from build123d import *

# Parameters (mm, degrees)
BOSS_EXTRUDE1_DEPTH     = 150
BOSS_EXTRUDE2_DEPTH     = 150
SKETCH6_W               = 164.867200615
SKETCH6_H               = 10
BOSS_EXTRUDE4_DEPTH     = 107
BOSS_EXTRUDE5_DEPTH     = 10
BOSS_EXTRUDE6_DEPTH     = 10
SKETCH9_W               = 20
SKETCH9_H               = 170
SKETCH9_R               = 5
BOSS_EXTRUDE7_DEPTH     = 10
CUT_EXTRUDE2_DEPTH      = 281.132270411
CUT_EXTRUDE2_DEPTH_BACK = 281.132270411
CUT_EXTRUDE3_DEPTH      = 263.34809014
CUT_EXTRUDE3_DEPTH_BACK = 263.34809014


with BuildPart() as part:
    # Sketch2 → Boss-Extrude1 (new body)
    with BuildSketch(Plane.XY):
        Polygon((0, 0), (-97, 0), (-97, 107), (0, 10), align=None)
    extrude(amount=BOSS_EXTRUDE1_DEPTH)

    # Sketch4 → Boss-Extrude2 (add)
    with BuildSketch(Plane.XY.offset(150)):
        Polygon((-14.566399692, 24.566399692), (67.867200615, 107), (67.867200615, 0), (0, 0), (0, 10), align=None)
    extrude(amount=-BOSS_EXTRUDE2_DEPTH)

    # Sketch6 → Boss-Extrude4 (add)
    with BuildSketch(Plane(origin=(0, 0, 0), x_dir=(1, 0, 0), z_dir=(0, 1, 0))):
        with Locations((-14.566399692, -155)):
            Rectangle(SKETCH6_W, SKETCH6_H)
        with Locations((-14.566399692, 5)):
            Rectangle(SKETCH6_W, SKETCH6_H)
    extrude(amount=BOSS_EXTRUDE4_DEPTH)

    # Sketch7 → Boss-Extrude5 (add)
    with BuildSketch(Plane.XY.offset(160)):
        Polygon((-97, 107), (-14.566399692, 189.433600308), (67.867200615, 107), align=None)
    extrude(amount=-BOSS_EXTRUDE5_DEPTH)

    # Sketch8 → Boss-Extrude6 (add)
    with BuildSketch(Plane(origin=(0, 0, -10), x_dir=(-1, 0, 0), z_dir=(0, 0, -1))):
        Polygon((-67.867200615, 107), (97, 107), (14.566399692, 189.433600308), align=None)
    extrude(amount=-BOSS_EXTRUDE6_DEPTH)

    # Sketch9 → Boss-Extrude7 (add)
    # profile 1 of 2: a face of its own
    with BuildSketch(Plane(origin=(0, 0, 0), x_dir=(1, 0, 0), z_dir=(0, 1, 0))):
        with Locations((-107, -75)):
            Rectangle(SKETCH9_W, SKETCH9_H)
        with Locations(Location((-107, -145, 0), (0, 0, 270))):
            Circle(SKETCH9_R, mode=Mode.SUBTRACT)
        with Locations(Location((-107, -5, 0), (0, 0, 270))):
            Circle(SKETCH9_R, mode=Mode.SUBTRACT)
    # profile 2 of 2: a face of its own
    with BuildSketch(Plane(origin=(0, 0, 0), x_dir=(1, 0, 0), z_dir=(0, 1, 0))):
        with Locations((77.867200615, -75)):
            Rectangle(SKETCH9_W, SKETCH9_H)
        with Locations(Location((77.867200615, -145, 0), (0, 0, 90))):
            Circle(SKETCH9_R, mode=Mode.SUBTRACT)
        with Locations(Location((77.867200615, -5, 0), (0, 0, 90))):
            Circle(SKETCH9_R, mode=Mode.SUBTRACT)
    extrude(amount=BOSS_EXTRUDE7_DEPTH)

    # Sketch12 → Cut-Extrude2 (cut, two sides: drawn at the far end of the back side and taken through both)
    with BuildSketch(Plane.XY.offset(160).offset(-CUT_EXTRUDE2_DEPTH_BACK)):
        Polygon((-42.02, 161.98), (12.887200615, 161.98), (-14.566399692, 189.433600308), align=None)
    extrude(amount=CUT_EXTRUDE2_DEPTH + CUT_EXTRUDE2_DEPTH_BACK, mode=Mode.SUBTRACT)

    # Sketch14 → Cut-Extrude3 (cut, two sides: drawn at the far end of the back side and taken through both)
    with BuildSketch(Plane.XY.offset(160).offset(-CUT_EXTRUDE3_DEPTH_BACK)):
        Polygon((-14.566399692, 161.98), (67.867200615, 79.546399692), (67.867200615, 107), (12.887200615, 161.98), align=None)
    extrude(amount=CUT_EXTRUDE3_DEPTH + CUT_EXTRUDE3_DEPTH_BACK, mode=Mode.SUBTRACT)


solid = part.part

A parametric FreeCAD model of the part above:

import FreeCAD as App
import Part
import Sketcher

V = App.Vector
Q = App.Units.Quantity

doc = App.newDocument("Part")
params = doc.addObject("Spreadsheet::Sheet", "Params")
for row, (alias, value) in enumerate([
    ("sketch1_width", "97 mm"),
    ("sketch1_height", "10 mm"),
    ("sketch1_height2", "107 mm"),
    ("pad1_length", "150 mm"),
    ("sketch2_height", "10 mm"),
    ("sketch2_height2", "107 mm"),
    ("sketch2_length", "20.6 mm"),
    ("pad2_length", "150 mm"),
    ("sketch3_height", "10 mm"),
    ("pad3_length", "107 mm"),
    ("pad4_length", "10 mm"),
    ("pad5_length", "10 mm"),
    ("sketch6_diameter", "10 mm"),
    ("sketch6_width", "20 mm"),
    ("sketch6_height", "170 mm"),
    ("pad6_length", "10 mm"),
], start=1):
    params.set(f"A{row}", alias)
    params.set(f"B{row}", "=" + value)
    params.setAlias(f"B{row}", alias)

body = doc.addObject("PartDesign::Body", "Body")

# Sketch on XY plane
sketch1 = body.newObject("Sketcher::SketchObject", "Sketch")
sketch1.AttachmentSupport = (doc.getObject("XY_Plane"), [""])
sketch1.MapMode = "FlatFace"
sketch1.addGeometry(Part.LineSegment(V(-97, 0, 0), V(0, 0, 0)), False)
sketch1.addGeometry(Part.LineSegment(V(0, 0, 0), V(0, 10, 0)), False)
sketch1.addGeometry(Part.LineSegment(V(0, 10, 0), V(-97, 107, 0)), False)
sketch1.addGeometry(Part.LineSegment(V(-97, 107, 0), V(-97, 0, 0)), False)
sketch1.addConstraint(Sketcher.Constraint("Coincident", 0, 2, 1, 1))
sketch1.addConstraint(Sketcher.Constraint("Coincident", 1, 2, 2, 1))
sketch1.addConstraint(Sketcher.Constraint("Coincident", 2, 2, 3, 1))
sketch1.addConstraint(Sketcher.Constraint("Coincident", 3, 2, 0, 1))
sketch1.addConstraint(Sketcher.Constraint("Horizontal", 0))
sketch1.addConstraint(Sketcher.Constraint("Vertical", 1))
sketch1.addConstraint(Sketcher.Constraint("Vertical", 3))
sketch1.addConstraint(Sketcher.Constraint("Coincident", 0, 2, -1, 1))
sketch1.addConstraint(Sketcher.Constraint("DistanceX", 0, 1, 0, 2, 97.0))
sketch1.addConstraint(Sketcher.Constraint("DistanceY", 1, 1, 1, 2, 10.0))
sketch1.addConstraint(Sketcher.Constraint("DistanceY", 3, 2, 3, 1, 107.0))
sketch1.setExpression("Constraints[8]", "Params.sketch1_width")
sketch1.setExpression("Constraints[9]", "Params.sketch1_height")
sketch1.setExpression("Constraints[10]", "Params.sketch1_height2")
pad1 = body.newObject("PartDesign::Pad", "Pad")
pad1.Profile = sketch1
pad1.setExpression("Length", "Params.pad1_length")

# Sketch on XY plane
sketch2 = body.newObject("Sketcher::SketchObject", "Sketch001")
sketch2.AttachmentSupport = (doc.getObject("XY_Plane"), [""])
sketch2.MapMode = "FlatFace"
sketch2.AttachmentOffset = App.Placement(V(0, 0, 150), App.Rotation())
sketch2.addGeometry(Part.LineSegment(V(68, 107, 0), V(-15, 25, 0)), False)
sketch2.addGeometry(Part.LineSegment(V(-15, 25, 0), V(0, 10, 0)), False)
sketch2.addGeometry(Part.LineSegment(V(0, 10, 0), V(0, 0, 0)), False)
sketch2.addGeometry(Part.LineSegment(V(0, 0, 0), V(68, 0, 0)), False)
sketch2.addGeometry(Part.LineSegment(V(68, 0, 0), V(68, 107, 0)), False)
sketch2.addConstraint(Sketcher.Constraint("Coincident", 0, 2, 1, 1))
sketch2.addConstraint(Sketcher.Constraint("Coincident", 1, 2, 2, 1))
sketch2.addConstraint(Sketcher.Constraint("Coincident", 2, 2, 3, 1))
sketch2.addConstraint(Sketcher.Constraint("Coincident", 3, 2, 4, 1))
sketch2.addConstraint(Sketcher.Constraint("Coincident", 4, 2, 0, 1))
sketch2.addConstraint(Sketcher.Constraint("Vertical", 2))
sketch2.addConstraint(Sketcher.Constraint("Horizontal", 3))
sketch2.addConstraint(Sketcher.Constraint("Vertical", 4))
sketch2.addConstraint(Sketcher.Constraint("Coincident", 2, 2, -1, 1))
sketch2.addConstraint(Sketcher.Constraint("Perpendicular", 0, 1))
sketch2.addConstraint(Sketcher.Constraint("DistanceY", 2, 2, 2, 1, 10.0))
sketch2.addConstraint(Sketcher.Constraint("DistanceY", 4, 1, 4, 2, 107.0))
sketch2.addConstraint(Sketcher.Constraint("Angle", 0, Q("-135 deg")))
sketch2.addConstraint(Sketcher.Constraint("Distance", 1, 20.6))
sketch2.setExpression("Constraints[10]", "Params.sketch2_height")
sketch2.setExpression("Constraints[11]", "Params.sketch2_height2")
sketch2.setExpression("Constraints[13]", "Params.sketch2_length")
pad2 = body.newObject("PartDesign::Pad", "Pad001")
pad2.Profile = sketch2
pad2.setExpression("Length", "Params.pad2_length")
pad2.Reversed = True

# Sketch on XZ plane
sketch3 = body.newObject("Sketcher::SketchObject", "Sketch002")
sketch3.AttachmentSupport = (doc.getObject("XZ_Plane"), [""])
sketch3.MapMode = "FlatFace"
sketch3.addGeometry(Part.LineSegment(V(-97, 150, 0), V(-97, 160, 0)), False)
sketch3.addGeometry(Part.LineSegment(V(-97, 160, 0), V(68, 160, 0)), False)
sketch3.addGeometry(Part.LineSegment(V(68, 160, 0), V(68, 150, 0)), False)
sketch3.addGeometry(Part.LineSegment(V(68, 150, 0), V(-97, 150, 0)), False)
sketch3.addGeometry(Part.LineSegment(V(-97, -10, 0), V(-97, 0, 0)), False)
sketch3.addGeometry(Part.LineSegment(V(-97, 0, 0), V(68, 0, 0)), False)
sketch3.addGeometry(Part.LineSegment(V(68, 0, 0), V(68, -10, 0)), False)
sketch3.addGeometry(Part.LineSegment(V(68, -10, 0), V(-97, -10, 0)), False)
sketch3.addConstraint(Sketcher.Constraint("Coincident", 0, 2, 1, 1))
sketch3.addConstraint(Sketcher.Constraint("Coincident", 1, 2, 2, 1))
sketch3.addConstraint(Sketcher.Constraint("Coincident", 2, 2, 3, 1))
sketch3.addConstraint(Sketcher.Constraint("Coincident", 3, 2, 0, 1))
sketch3.addConstraint(Sketcher.Constraint("Coincident", 4, 2, 5, 1))
sketch3.addConstraint(Sketcher.Constraint("Coincident", 5, 2, 6, 1))
sketch3.addConstraint(Sketcher.Constraint("Coincident", 6, 2, 7, 1))
sketch3.addConstraint(Sketcher.Constraint("Coincident", 7, 2, 4, 1))
sketch3.addConstraint(Sketcher.Constraint("Vertical", 0))
sketch3.addConstraint(Sketcher.Constraint("Horizontal", 1))
sketch3.addConstraint(Sketcher.Constraint("Vertical", 2))
sketch3.addConstraint(Sketcher.Constraint("Horizontal", 3))
sketch3.addConstraint(Sketcher.Constraint("Vertical", 4))
sketch3.addConstraint(Sketcher.Constraint("Horizontal", 5))
sketch3.addConstraint(Sketcher.Constraint("Vertical", 6))
sketch3.addConstraint(Sketcher.Constraint("Horizontal", 7))
sketch3.addConstraint(Sketcher.Constraint("PointOnObject", 4, 2, -1))
sketch3.addConstraint(Sketcher.Constraint("Vertical", 3, 2, 4, 2))
sketch3.addConstraint(Sketcher.Constraint("Vertical", 2, 2, 5, 2))
sketch3.addConstraint(Sketcher.Constraint("Equal", 2, 4))
sketch3.addConstraint(Sketcher.Constraint("DistanceY", 0, 1, 0, 2, 10.0))
sketch3.addConstraint(Sketcher.Constraint("DistanceX", 0, 2, -1, 1, 97.0))
sketch3.addConstraint(Sketcher.Constraint("DistanceY", -1, 1, 0, 2, 160.0))
sketch3.addConstraint(Sketcher.Constraint("DistanceX", 1, 1, 1, 2, 164.867201))
sketch3.setExpression("Constraints[20]", "Params.sketch3_height")
pad3 = body.newObject("PartDesign::Pad", "Pad002")
pad3.Profile = sketch3
pad3.setExpression("Length", "Params.pad3_length")
pad3.Reversed = True

# Sketch on XY plane
sketch4 = body.newObject("Sketcher::SketchObject", "Sketch003")
sketch4.AttachmentSupport = (doc.getObject("XY_Plane"), [""])
sketch4.MapMode = "FlatFace"
sketch4.AttachmentOffset = App.Placement(V(0, 0, 160), App.Rotation())
sketch4.addGeometry(Part.LineSegment(V(-15, 189, 0), V(-97, 107, 0)), False)
sketch4.addGeometry(Part.LineSegment(V(-97, 107, 0), V(68, 107, 0)), False)
sketch4.addGeometry(Part.LineSegment(V(68, 107, 0), V(-15, 189, 0)), False)
sketch4.addConstraint(Sketcher.Constraint("Coincident", 0, 2, 1, 1))
sketch4.addConstraint(Sketcher.Constraint("Coincident", 1, 2, 2, 1))
sketch4.addConstraint(Sketcher.Constraint("Coincident", 2, 2, 0, 1))
sketch4.addConstraint(Sketcher.Constraint("Horizontal", 1))
sketch4.addConstraint(Sketcher.Constraint("Perpendicular", 0, 2))
sketch4.addConstraint(Sketcher.Constraint("Equal", 0, 2))
sketch4.addConstraint(Sketcher.Constraint("DistanceX", 0, 2, -1, 1, 97.0))
sketch4.addConstraint(Sketcher.Constraint("DistanceY", -1, 1, 0, 2, 107.0))
sketch4.addConstraint(Sketcher.Constraint("DistanceX", 1, 1, 1, 2, 164.867201))
pad4 = body.newObject("PartDesign::Pad", "Pad003")
pad4.Profile = sketch4
pad4.setExpression("Length", "Params.pad4_length")
pad4.Reversed = True

# Sketch on XY plane
sketch5 = body.newObject("Sketcher::SketchObject", "Sketch004")
sketch5.AttachmentSupport = (doc.getObject("XY_Plane"), [""])
sketch5.MapMode = "FlatFace"
sketch5.AttachmentOffset = App.Placement(V(0, 0, -10), App.Rotation())
sketch5.addGeometry(Part.LineSegment(V(68, 107, 0), V(-97, 107, 0)), False)
sketch5.addGeometry(Part.LineSegment(V(-97, 107, 0), V(-15, 189, 0)), False)
sketch5.addGeometry(Part.LineSegment(V(-15, 189, 0), V(68, 107, 0)), False)
sketch5.addConstraint(Sketcher.Constraint("Coincident", 0, 2, 1, 1))
sketch5.addConstraint(Sketcher.Constraint("Coincident", 1, 2, 2, 1))
sketch5.addConstraint(Sketcher.Constraint("Coincident", 2, 2, 0, 1))
sketch5.addConstraint(Sketcher.Constraint("Horizontal", 0))
sketch5.addConstraint(Sketcher.Constraint("Perpendicular", 1, 2))
sketch5.addConstraint(Sketcher.Constraint("Equal", 1, 2))
sketch5.addConstraint(Sketcher.Constraint("DistanceX", 0, 2, -1, 1, 97.0))
sketch5.addConstraint(Sketcher.Constraint("DistanceY", -1, 1, 0, 2, 107.0))
sketch5.addConstraint(Sketcher.Constraint("DistanceX", 0, 2, 0, 1, 164.867201))
pad5 = body.newObject("PartDesign::Pad", "Pad004")
pad5.Profile = sketch5
pad5.setExpression("Length", "Params.pad5_length")

# Sketch on XZ plane
sketch6 = body.newObject("Sketcher::SketchObject", "Sketch005")
sketch6.AttachmentSupport = (doc.getObject("XZ_Plane"), [""])
sketch6.MapMode = "FlatFace"
sketch6.addGeometry(Part.LineSegment(V(-117, -10, 0), V(-117, 160, 0)), False)
sketch6.addGeometry(Part.LineSegment(V(-117, 160, 0), V(-97, 160, 0)), False)
sketch6.addGeometry(Part.LineSegment(V(-97, 160, 0), V(-97, -10, 0)), False)
sketch6.addGeometry(Part.LineSegment(V(-97, -10, 0), V(-117, -10, 0)), False)
sketch6.addGeometry(Part.Circle(V(-107, 145, 0), V(0, 0, 1), 5), False)
sketch6.addGeometry(Part.Circle(V(-107, 5, 0), V(0, 0, 1), 5), False)
sketch6.addGeometry(Part.LineSegment(V(68, -10, 0), V(68, 160, 0)), False)
sketch6.addGeometry(Part.LineSegment(V(68, 160, 0), V(88, 160, 0)), False)
sketch6.addGeometry(Part.LineSegment(V(88, 160, 0), V(88, -10, 0)), False)
sketch6.addGeometry(Part.LineSegment(V(88, -10, 0), V(68, -10, 0)), False)
sketch6.addGeometry(Part.Circle(V(78, 145, 0), V(0, 0, 1), 5), False)
sketch6.addGeometry(Part.Circle(V(78, 5, 0), V(0, 0, 1), 5), False)
sketch6.addConstraint(Sketcher.Constraint("Coincident", 0, 2, 1, 1))
sketch6.addConstraint(Sketcher.Constraint("Coincident", 1, 2, 2, 1))
sketch6.addConstraint(Sketcher.Constraint("Coincident", 2, 2, 3, 1))
sketch6.addConstraint(Sketcher.Constraint("Coincident", 3, 2, 0, 1))
sketch6.addConstraint(Sketcher.Constraint("Coincident", 6, 2, 7, 1))
sketch6.addConstraint(Sketcher.Constraint("Coincident", 7, 2, 8, 1))
sketch6.addConstraint(Sketcher.Constraint("Coincident", 8, 2, 9, 1))
sketch6.addConstraint(Sketcher.Constraint("Coincident", 9, 2, 6, 1))
sketch6.addConstraint(Sketcher.Constraint("Vertical", 0))
sketch6.addConstraint(Sketcher.Constraint("Horizontal", 1))
sketch6.addConstraint(Sketcher.Constraint("Vertical", 2))
sketch6.addConstraint(Sketcher.Constraint("Horizontal", 3))
sketch6.addConstraint(Sketcher.Constraint("Vertical", 6))
sketch6.addConstraint(Sketcher.Constraint("Horizontal", 7))
sketch6.addConstraint(Sketcher.Constraint("Vertical", 8))
sketch6.addConstraint(Sketcher.Constraint("Horizontal", 9))
sketch6.addConstraint(Sketcher.Constraint("Equal", 4, 5))
sketch6.addConstraint(Sketcher.Constraint("Equal", 5, 10))
sketch6.addConstraint(Sketcher.Constraint("Equal", 10, 11))
sketch6.addConstraint(Sketcher.Constraint("Horizontal", 4, 3, 10, 3))
sketch6.addConstraint(Sketcher.Constraint("Horizontal", 5, 3, 11, 3))
sketch6.addConstraint(Sketcher.Constraint("Horizontal", 1, 2, 6, 2))
sketch6.addConstraint(Sketcher.Constraint("Horizontal", 3, 2, 8, 2))
sketch6.addConstraint(Sketcher.Constraint("Vertical", 4, 3, 5, 3))
sketch6.addConstraint(Sketcher.Constraint("Vertical", 10, 3, 11, 3))
sketch6.addConstraint(Sketcher.Constraint("Equal", 3, 7))
sketch6.addConstraint(Sketcher.Constraint("Diameter", 4, 10.0))
sketch6.addConstraint(Sketcher.Constraint("DistanceX", 1, 1, 1, 2, 20.0))
sketch6.addConstraint(Sketcher.Constraint("DistanceY", 0, 1, 0, 2, 170.0))
sketch6.addConstraint(Sketcher.Constraint("DistanceX", 4, 3, -1, 1, 107.0))
sketch6.addConstraint(Sketcher.Constraint("DistanceY", -1, 1, 4, 3, 145.0))
sketch6.addConstraint(Sketcher.Constraint("DistanceY", -1, 1, 5, 3, 5.0))
sketch6.addConstraint(Sketcher.Constraint("DistanceX", 0, 2, -1, 1, 117.0))
sketch6.addConstraint(Sketcher.Constraint("DistanceY", -1, 1, 0, 2, 160.0))
sketch6.addConstraint(Sketcher.Constraint("DistanceX", 6, 2, 10, 3, 10.0))
sketch6.addConstraint(Sketcher.Constraint("DistanceX", -1, 1, 10, 3, 77.867201))
sketch6.setExpression("Constraints[26]", "Params.sketch6_diameter")
sketch6.setExpression("Constraints[27]", "Params.sketch6_width")
sketch6.setExpression("Constraints[28]", "Params.sketch6_height")
pad6 = body.newObject("PartDesign::Pad", "Pad005")
pad6.Profile = sketch6
pad6.setExpression("Length", "Params.pad6_length")
pad6.Reversed = True

# Sketch on XY plane
sketch7 = body.newObject("Sketcher::SketchObject", "Sketch006")
sketch7.AttachmentSupport = (doc.getObject("XY_Plane"), [""])
sketch7.MapMode = "FlatFace"
sketch7.AttachmentOffset = App.Placement(V(0, 0, 160), App.Rotation())
sketch7.addGeometry(Part.LineSegment(V(-42, 162, 0), V(13, 162, 0)), False)
sketch7.addGeometry(Part.LineSegment(V(13, 162, 0), V(-15, 189, 0)), False)
sketch7.addGeometry(Part.LineSegment(V(-15, 189, 0), V(-42, 162, 0)), False)
sketch7.addConstraint(Sketcher.Constraint("Coincident", 0, 2, 1, 1))
sketch7.addConstraint(Sketcher.Constraint("Coincident", 1, 2, 2, 1))
sketch7.addConstraint(Sketcher.Constraint("Coincident", 2, 2, 0, 1))
sketch7.addConstraint(Sketcher.Constraint("Horizontal", 0))
sketch7.addConstraint(Sketcher.Constraint("Perpendicular", 1, 2))
sketch7.addConstraint(Sketcher.Constraint("Equal", 1, 2))
sketch7.addConstraint(Sketcher.Constraint("DistanceY", -1, 1, 0, 2, 161.98))
sketch7.addConstraint(Sketcher.Constraint("DistanceX", 2, 2, -1, 1, 42.02))
sketch7.addConstraint(Sketcher.Constraint("DistanceX", 0, 1, 0, 2, 54.907201))
pocket1 = body.newObject("PartDesign::Pocket", "Pocket")
pocket1.Profile = sketch7
pocket1.Type = "ThroughAll"
pocket1.Midplane = True

# Sketch on XY plane
sketch8 = body.newObject("Sketcher::SketchObject", "Sketch007")
sketch8.AttachmentSupport = (doc.getObject("XY_Plane"), [""])
sketch8.MapMode = "FlatFace"
sketch8.AttachmentOffset = App.Placement(V(0, 0, 160), App.Rotation())
sketch8.addGeometry(Part.LineSegment(V(-15, 162, 0), V(68, 80, 0)), False)
sketch8.addGeometry(Part.LineSegment(V(68, 80, 0), V(68, 107, 0)), False)
sketch8.addGeometry(Part.LineSegment(V(68, 107, 0), V(13, 162, 0)), False)
sketch8.addGeometry(Part.LineSegment(V(13, 162, 0), V(-15, 162, 0)), False)
sketch8.addConstraint(Sketcher.Constraint("Coincident", 0, 2, 1, 1))
sketch8.addConstraint(Sketcher.Constraint("Coincident", 1, 2, 2, 1))
sketch8.addConstraint(Sketcher.Constraint("Coincident", 2, 2, 3, 1))
sketch8.addConstraint(Sketcher.Constraint("Coincident", 3, 2, 0, 1))
sketch8.addConstraint(Sketcher.Constraint("Vertical", 1))
sketch8.addConstraint(Sketcher.Constraint("Horizontal", 3))
sketch8.addConstraint(Sketcher.Constraint("Parallel", 0, 2))
sketch8.addConstraint(Sketcher.Constraint("Equal", 3, 1))
sketch8.addConstraint(Sketcher.Constraint("DistanceY", -1, 1, 1, 2, 107.0))
sketch8.addConstraint(Sketcher.Constraint("DistanceY", -1, 1, 2, 2, 161.98))
sketch8.addConstraint(Sketcher.Constraint("DistanceX", 3, 2, 3, 1, 27.4536))
sketch8.addConstraint(Sketcher.Constraint("DistanceX", -1, 1, 0, 2, 67.867201))
pocket2 = body.newObject("PartDesign::Pocket", "Pocket001")
pocket2.Profile = sketch8
pocket2.Type = "ThroughAll"
pocket2.Midplane = True

doc.recompute()
